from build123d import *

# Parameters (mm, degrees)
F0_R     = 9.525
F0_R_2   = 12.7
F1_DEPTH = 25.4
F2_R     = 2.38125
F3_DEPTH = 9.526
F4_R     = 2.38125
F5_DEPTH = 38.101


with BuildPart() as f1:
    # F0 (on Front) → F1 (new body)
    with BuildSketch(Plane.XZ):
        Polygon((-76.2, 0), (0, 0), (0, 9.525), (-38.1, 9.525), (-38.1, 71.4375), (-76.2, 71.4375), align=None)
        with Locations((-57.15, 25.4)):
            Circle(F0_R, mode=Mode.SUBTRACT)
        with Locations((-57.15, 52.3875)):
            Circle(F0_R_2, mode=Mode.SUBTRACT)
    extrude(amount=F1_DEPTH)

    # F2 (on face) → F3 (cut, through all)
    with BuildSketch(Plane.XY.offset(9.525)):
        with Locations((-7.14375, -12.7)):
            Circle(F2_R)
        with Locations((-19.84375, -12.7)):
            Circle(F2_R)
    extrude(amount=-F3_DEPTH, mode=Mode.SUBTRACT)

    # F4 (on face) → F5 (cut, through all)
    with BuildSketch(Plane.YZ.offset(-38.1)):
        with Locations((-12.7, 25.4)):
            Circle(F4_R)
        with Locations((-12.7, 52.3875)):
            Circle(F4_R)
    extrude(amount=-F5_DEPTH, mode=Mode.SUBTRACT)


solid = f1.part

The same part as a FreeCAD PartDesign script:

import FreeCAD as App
import Part
import Sketcher
from FreeCAD import Vector
Q = App.Units.Quantity

doc = App.newDocument("Part")
body = doc.addObject("PartDesign::Body", "Body")

sketch1 = doc.addObject("Sketcher::SketchObject", "Sketch")
body.addObject(sketch1)
sketch1.AttachmentSupport = (doc.XZ_Plane, [""])
sketch1.MapMode = "FlatFace"
sketch1.addGeometry(Part.LineSegment(Vector(-76, 0, 0), Vector(0, 0, 0)), False)
sketch1.addGeometry(Part.LineSegment(Vector(0, 0, 0), Vector(0, 10, 0)), False)
sketch1.addGeometry(Part.LineSegment(Vector(0, 10, 0), Vector(-38, 10, 0)), False)
sketch1.addGeometry(Part.LineSegment(Vector(-38, 10, 0), Vector(-38, 71, 0)), False)
sketch1.addGeometry(Part.LineSegment(Vector(-38, 71, 0), Vector(-76, 71, 0)), False)
sketch1.addGeometry(Part.LineSegment(Vector(-76, 71, 0), Vector(-76, 0, 0)), False)
sketch1.addGeometry(Part.Circle(Vector(-57, 25, 0), Vector(0, 0, 1), 10), False)
sketch1.addGeometry(Part.Circle(Vector(-57, 52, 0), Vector(0, 0, 1), 13), False)
sketch1.addConstraint(Sketcher.Constraint("Coincident", 0, 2, 1, 1))
sketch1.addConstraint(Sketcher.Constraint("Coincident", 1, 2, 2, 1))
sketch1.addConstraint(Sketcher.Constraint("Coincident", 2, 2, 3, 1))
sketch1.addConstraint(Sketcher.Constraint("Coincident", 3, 2, 4, 1))
sketch1.addConstraint(Sketcher.Constraint("Coincident", 4, 2, 5, 1))
sketch1.addConstraint(Sketcher.Constraint("Coincident", 5, 2, 0, 1))
sketch1.addConstraint(Sketcher.Constraint("Horizontal", 0))
sketch1.addConstraint(Sketcher.Constraint("Vertical", 1))
sketch1.addConstraint(Sketcher.Constraint("Horizontal", 2))
sketch1.addConstraint(Sketcher.Constraint("Vertical", 3))
sketch1.addConstraint(Sketcher.Constraint("Horizontal", 4))
sketch1.addConstraint(Sketcher.Constraint("Vertical", 5))
sketch1.addConstraint(Sketcher.Constraint("Coincident", 0, 2, -1, 1))
sketch1.addConstraint(Sketcher.Constraint("Vertical", 6, 3, 7, 3))
sketch1.addConstraint(Sketcher.Constraint("Equal", 2, 4))
sketch1.addConstraint(Sketcher.Constraint("Diameter", 7, Q("1 in")))
sketch1.addConstraint(Sketcher.Constraint("Diameter", 6, Q("0.75 in")))
sketch1.addConstraint(Sketcher.Constraint("DistanceX", 0, 1, 0, 2, Q("3 in")))
sketch1.addConstraint(Sketcher.Constraint("DistanceY", -1, 1, 6, 3, Q("1 in")))
sketch1.addConstraint(Sketcher.Constraint("DistanceY", 1, 1, 1, 2, Q("0.375 in")))
sketch1.addConstraint(Sketcher.Constraint("DistanceY", 3, 1, 3, 2, Q("2.4375 in")))
sketch1.addConstraint(Sketcher.Constraint("DistanceX", 6, 3, -1, 1, Q("2.25 in")))
sketch1.addConstraint(Sketcher.Constraint("DistanceY", 7, 3, 3, 2, Q("0.75 in")))
pad1 = doc.addObject("PartDesign::Pad", "Pad")
body.addObject(pad1)
pad1.Profile = sketch1
pad1.Length = Q("1 in")

sketch2 = doc.addObject("Sketcher::SketchObject", "Sketch001")
body.addObject(sketch2)
sketch2.AttachmentSupport = (doc.XY_Plane, [""])
sketch2.MapMode = "FlatFace"
sketch2.AttachmentOffset = App.Placement(Vector(0, 0, 0.375 * 25.4), App.Rotation())
sketch2.addGeometry(Part.Circle(Vector(-7.1, -12.7, 0), Vector(0, 0, 1), 2.4), False)
sketch2.addGeometry(Part.Circle(Vector(-19.8, -12.7, 0), Vector(0, 0, 1), 2.4), False)
sketch2.addConstraint(Sketcher.Constraint("Equal", 0, 1))
sketch2.addConstraint(Sketcher.Constraint("Horizontal", 0, 3, 1, 3))
sketch2.addConstraint(Sketcher.Constraint("Diameter", 0, Q("0.1875 in")))
sketch2.addConstraint(Sketcher.Constraint("DistanceY", 0, 3, -1, 1, Q("0.5 in")))
sketch2.addConstraint(Sketcher.Constraint("DistanceX", 1, 3, 0, 3, Q("0.5 in")))
sketch2.addConstraint(Sketcher.Constraint("DistanceX", 0, 3, -1, 1, Q("0.28125 in")))
pocket1 = doc.addObject("PartDesign::Pocket", "Pocket")
body.addObject(pocket1)
pocket1.Profile = sketch2
pocket1.Type = "ThroughAll"

sketch3 = doc.addObject("Sketcher::SketchObject", "Sketch002")
body.addObject(sketch3)
sketch3.AttachmentSupport = (doc.YZ_Plane, [""])
sketch3.MapMode = "FlatFace"
sketch3.AttachmentOffset = App.Placement(Vector(0, 0, -1.5 * 25.4), App.Rotation())
sketch3.addGeometry(Part.Circle(Vector(-12.7, 25.4, 0), Vector(0, 0, 1), 2.4), False)
sketch3.addGeometry(Part.Circle(Vector(-12.7, 52.4, 0), Vector(0, 0, 1), 2.4), False)
sketch3.addConstraint(Sketcher.Constraint("Equal", 0, 1))
sketch3.addConstraint(Sketcher.Constraint("Vertical", 0, 3, 1, 3))
sketch3.addConstraint(Sketcher.Constraint("Diameter", 0, Q("0.1875 in")))
sketch3.addConstraint(Sketcher.Constraint("DistanceY", -1, 1, 0, 3, Q("1 in")))
sketch3.addConstraint(Sketcher.Constraint("DistanceX", 0, 3, -1, 1, Q("0.5 in")))
sketch3.addConstraint(Sketcher.Constraint("DistanceY", -1, 1, 1, 3, Q("2.0625 in")))
pocket2 = doc.addObject("PartDesign::Pocket", "Pocket001")
body.addObject(pocket2)
pocket2.Profile = sketch3
pocket2.Type = "ThroughAll"

doc.recompute()
